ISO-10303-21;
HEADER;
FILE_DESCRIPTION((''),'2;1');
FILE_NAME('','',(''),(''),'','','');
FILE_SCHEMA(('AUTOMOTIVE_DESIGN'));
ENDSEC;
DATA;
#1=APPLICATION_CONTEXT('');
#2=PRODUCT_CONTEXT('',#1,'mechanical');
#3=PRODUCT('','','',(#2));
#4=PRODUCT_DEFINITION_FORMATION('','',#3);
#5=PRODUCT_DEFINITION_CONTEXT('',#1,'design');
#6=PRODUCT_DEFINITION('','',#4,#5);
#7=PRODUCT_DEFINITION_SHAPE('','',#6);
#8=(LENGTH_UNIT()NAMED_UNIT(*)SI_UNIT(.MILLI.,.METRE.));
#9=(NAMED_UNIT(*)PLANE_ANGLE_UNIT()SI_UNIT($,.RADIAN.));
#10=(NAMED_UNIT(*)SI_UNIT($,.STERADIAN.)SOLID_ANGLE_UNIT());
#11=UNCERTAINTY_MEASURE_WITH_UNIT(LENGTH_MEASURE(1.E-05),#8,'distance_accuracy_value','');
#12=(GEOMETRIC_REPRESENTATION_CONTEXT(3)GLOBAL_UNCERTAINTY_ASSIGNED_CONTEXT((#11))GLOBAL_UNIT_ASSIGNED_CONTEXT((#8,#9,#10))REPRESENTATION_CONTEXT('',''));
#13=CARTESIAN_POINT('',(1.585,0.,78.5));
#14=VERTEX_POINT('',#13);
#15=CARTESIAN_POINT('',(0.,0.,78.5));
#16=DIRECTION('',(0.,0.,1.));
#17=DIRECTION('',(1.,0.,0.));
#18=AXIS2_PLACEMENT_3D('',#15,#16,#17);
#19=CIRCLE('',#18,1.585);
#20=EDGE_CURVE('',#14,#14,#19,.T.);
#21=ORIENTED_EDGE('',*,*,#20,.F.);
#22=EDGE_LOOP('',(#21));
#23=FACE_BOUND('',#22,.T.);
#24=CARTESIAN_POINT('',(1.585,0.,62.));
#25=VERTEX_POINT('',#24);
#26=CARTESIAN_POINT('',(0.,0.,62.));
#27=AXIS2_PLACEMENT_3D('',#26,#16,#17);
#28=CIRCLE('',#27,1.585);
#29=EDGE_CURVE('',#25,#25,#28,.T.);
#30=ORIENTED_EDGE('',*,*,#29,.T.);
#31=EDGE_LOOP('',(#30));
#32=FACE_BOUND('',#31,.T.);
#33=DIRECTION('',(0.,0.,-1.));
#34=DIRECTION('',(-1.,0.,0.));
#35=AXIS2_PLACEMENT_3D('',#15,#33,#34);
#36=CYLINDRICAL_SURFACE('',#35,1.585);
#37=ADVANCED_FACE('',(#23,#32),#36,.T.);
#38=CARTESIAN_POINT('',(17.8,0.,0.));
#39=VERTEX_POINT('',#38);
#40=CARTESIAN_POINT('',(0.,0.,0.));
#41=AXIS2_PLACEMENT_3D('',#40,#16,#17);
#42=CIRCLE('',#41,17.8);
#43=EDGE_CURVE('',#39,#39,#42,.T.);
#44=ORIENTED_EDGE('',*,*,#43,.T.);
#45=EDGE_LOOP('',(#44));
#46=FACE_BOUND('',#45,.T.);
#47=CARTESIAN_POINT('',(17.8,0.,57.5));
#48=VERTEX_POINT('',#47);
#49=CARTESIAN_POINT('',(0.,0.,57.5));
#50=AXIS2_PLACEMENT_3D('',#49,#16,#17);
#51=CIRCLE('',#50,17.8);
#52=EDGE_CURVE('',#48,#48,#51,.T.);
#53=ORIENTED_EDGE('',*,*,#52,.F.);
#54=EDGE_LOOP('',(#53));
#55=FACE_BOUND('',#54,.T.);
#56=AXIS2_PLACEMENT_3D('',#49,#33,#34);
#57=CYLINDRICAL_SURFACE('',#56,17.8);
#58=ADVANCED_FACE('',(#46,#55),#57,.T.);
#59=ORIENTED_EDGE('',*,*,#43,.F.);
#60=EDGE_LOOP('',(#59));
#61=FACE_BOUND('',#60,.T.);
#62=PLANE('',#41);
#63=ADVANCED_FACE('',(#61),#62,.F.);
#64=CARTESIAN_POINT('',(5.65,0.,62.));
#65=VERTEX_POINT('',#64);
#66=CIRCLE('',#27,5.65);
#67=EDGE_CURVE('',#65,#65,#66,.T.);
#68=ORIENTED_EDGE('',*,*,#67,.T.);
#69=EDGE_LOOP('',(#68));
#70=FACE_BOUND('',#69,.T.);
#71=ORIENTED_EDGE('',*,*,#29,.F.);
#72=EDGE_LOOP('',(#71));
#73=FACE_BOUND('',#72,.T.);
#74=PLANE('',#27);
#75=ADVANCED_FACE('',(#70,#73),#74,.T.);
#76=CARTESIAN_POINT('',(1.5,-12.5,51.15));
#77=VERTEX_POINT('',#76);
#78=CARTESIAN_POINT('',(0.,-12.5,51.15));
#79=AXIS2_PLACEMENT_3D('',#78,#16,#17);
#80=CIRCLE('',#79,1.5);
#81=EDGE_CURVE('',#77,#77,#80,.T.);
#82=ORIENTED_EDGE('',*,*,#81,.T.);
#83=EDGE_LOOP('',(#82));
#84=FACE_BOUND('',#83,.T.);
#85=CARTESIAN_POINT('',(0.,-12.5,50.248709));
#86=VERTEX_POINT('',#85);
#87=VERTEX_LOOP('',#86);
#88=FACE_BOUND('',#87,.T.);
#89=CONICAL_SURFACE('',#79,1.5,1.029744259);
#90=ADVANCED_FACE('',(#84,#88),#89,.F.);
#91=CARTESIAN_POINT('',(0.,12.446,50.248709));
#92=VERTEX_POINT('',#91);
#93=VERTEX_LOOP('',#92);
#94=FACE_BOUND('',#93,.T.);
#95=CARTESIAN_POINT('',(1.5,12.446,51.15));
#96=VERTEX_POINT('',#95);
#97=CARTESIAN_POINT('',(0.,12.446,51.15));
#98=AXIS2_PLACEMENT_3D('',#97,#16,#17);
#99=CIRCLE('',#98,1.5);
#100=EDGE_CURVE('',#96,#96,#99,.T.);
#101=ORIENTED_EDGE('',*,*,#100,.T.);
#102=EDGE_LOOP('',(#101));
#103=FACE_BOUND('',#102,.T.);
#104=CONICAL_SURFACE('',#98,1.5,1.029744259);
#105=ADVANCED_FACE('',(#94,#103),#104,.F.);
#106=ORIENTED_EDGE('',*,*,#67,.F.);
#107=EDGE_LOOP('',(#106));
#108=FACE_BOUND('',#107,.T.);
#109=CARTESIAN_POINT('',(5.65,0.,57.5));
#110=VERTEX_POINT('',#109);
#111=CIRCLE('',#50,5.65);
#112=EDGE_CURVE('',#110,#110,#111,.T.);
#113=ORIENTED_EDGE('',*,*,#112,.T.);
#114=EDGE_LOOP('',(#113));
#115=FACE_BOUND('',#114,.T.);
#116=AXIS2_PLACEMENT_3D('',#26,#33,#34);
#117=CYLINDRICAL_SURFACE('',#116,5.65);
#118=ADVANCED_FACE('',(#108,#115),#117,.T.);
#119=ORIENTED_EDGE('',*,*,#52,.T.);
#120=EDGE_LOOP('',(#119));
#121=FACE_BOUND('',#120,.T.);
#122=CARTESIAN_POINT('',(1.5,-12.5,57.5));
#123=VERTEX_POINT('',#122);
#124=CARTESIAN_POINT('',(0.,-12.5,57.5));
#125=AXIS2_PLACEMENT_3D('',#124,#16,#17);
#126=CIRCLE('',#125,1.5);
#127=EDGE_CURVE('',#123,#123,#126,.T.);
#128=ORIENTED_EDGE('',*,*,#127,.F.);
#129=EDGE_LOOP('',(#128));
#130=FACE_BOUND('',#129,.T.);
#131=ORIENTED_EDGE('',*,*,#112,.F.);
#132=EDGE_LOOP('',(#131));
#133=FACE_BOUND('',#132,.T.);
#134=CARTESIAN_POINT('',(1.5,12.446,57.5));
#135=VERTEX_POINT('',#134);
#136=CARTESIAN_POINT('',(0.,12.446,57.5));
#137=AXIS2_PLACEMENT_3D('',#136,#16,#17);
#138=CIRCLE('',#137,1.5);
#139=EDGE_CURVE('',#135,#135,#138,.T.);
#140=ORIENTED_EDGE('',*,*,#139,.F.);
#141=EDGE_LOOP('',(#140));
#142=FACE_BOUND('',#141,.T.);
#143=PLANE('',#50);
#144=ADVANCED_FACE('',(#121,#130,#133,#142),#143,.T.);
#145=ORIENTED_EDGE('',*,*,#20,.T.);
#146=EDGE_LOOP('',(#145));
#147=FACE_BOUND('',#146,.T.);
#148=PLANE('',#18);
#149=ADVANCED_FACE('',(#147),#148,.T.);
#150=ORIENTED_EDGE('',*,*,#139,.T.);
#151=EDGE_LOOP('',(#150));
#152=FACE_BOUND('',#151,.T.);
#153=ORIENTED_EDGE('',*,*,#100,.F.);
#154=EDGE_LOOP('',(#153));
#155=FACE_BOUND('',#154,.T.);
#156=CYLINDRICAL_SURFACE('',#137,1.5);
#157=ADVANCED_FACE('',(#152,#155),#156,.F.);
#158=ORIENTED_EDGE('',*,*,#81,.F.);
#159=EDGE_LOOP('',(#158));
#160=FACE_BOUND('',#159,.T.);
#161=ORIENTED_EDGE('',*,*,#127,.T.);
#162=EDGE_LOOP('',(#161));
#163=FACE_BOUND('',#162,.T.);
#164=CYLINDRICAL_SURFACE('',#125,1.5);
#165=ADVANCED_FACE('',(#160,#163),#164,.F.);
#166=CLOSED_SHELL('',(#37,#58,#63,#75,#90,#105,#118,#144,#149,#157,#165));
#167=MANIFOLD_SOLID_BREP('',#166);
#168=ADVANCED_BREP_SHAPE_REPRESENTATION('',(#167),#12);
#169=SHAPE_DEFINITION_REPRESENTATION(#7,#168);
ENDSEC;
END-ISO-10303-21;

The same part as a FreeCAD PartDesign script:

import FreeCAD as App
import Part
import Sketcher
Q = App.Units.Quantity

doc = App.newDocument("Part")
body = doc.addObject("PartDesign::Body", "Body")

# Sketch on XY plane
sketch1 = body.newObject("Sketcher::SketchObject", "Sketch")
sketch1.AttachmentSupport = (doc.getObject("XY_Plane"), [""])
sketch1.MapMode = "FlatFace"
sketch1.addGeometry(Part.Circle(App.Vector(0, 0, 0), App.Vector(0, 0, 1), 18), False)
sketch1.addConstraint(Sketcher.Constraint("Coincident", 0, 3, -1, 1))
sketch1.addConstraint(Sketcher.Constraint("Diameter", 0, Q("35.6 mm")))
pad1 = body.newObject("PartDesign::Pad", "Pad")
pad1.Profile = sketch1
pad1.Length = 57.5

# Sketch on XY plane
sketch2 = body.newObject("Sketcher::SketchObject", "Sketch001")
sketch2.AttachmentSupport = (doc.getObject("XY_Plane"), [""])
sketch2.MapMode = "FlatFace"
sketch2.AttachmentOffset = App.Placement(App.Vector(0, 0, 57.5), App.Rotation())
sketch2.addGeometry(Part.Circle(App.Vector(0, 0, 0), App.Vector(0, 0, 1), 6), False)
sketch2.addConstraint(Sketcher.Constraint("Coincident", 0, 3, -1, 1))
sketch2.addConstraint(Sketcher.Constraint("Diameter", 0, Q("11.3 mm")))
pad2 = body.newObject("PartDesign::Pad", "Pad001")
pad2.Profile = sketch2
pad2.Length = 4.5

# Sketch on XY plane
sketch3 = body.newObject("Sketcher::SketchObject", "Sketch002")
sketch3.AttachmentSupport = (doc.getObject("XY_Plane"), [""])
sketch3.MapMode = "FlatFace"
sketch3.AttachmentOffset = App.Placement(App.Vector(0, 0, 62), App.Rotation())
sketch3.addGeometry(Part.Circle(App.Vector(0, 0, 0), App.Vector(0, 0, 1), 1.6), False)
sketch3.addConstraint(Sketcher.Constraint("Coincident", 0, 3, -1, 1))
sketch3.addConstraint(Sketcher.Constraint("Diameter", 0, Q("3.17 mm")))
pad3 = body.newObject("PartDesign::Pad", "Pad002")
pad3.Profile = sketch3
pad3.Length = 16.5

# Sketch on XY plane
sketch4 = body.newObject("Sketcher::SketchObject", "Sketch003")
sketch4.AttachmentSupport = (doc.getObject("XY_Plane"), [""])
sketch4.MapMode = "FlatFace"
sketch4.AttachmentOffset = App.Placement(App.Vector(0, 0, 57.5), App.Rotation())
sketch4.addGeometry(Part.Circle(App.Vector(0, 12.4, 0), App.Vector(0, 0, 1), 1.5), False)
sketch4.addGeometry(Part.Circle(App.Vector(0, -12.5, 0), App.Vector(0, 0, 1), 1.5), False)
sketch4.addConstraint(Sketcher.Constraint("Equal", 0, 1))
sketch4.addConstraint(Sketcher.Constraint("PointOnObject", 0, 3, -2))
sketch4.addConstraint(Sketcher.Constraint("PointOnObject", 1, 3, -2))
sketch4.addConstraint(Sketcher.Constraint("Diameter", 0, Q("3 mm")))
sketch4.addConstraint(Sketcher.Constraint("DistanceY", 1, 3, -1, 1, Q("12.5 mm")))
sketch4.addConstraint(Sketcher.Constraint("DistanceY", -1, 1, 0, 3, Q("12.446 mm")))
doc.recompute()
hole = body.newObject("PartDesign::Hole", "Hole")
hole.Profile = sketch4
hole.ThreadType = "None"
hole.Diameter = 3
hole.DepthType = "Dimension"
hole.Depth = 6.35
hole.DrillPoint = "Angled"
hole.DrillPointAngle = 118

doc.recompute()
